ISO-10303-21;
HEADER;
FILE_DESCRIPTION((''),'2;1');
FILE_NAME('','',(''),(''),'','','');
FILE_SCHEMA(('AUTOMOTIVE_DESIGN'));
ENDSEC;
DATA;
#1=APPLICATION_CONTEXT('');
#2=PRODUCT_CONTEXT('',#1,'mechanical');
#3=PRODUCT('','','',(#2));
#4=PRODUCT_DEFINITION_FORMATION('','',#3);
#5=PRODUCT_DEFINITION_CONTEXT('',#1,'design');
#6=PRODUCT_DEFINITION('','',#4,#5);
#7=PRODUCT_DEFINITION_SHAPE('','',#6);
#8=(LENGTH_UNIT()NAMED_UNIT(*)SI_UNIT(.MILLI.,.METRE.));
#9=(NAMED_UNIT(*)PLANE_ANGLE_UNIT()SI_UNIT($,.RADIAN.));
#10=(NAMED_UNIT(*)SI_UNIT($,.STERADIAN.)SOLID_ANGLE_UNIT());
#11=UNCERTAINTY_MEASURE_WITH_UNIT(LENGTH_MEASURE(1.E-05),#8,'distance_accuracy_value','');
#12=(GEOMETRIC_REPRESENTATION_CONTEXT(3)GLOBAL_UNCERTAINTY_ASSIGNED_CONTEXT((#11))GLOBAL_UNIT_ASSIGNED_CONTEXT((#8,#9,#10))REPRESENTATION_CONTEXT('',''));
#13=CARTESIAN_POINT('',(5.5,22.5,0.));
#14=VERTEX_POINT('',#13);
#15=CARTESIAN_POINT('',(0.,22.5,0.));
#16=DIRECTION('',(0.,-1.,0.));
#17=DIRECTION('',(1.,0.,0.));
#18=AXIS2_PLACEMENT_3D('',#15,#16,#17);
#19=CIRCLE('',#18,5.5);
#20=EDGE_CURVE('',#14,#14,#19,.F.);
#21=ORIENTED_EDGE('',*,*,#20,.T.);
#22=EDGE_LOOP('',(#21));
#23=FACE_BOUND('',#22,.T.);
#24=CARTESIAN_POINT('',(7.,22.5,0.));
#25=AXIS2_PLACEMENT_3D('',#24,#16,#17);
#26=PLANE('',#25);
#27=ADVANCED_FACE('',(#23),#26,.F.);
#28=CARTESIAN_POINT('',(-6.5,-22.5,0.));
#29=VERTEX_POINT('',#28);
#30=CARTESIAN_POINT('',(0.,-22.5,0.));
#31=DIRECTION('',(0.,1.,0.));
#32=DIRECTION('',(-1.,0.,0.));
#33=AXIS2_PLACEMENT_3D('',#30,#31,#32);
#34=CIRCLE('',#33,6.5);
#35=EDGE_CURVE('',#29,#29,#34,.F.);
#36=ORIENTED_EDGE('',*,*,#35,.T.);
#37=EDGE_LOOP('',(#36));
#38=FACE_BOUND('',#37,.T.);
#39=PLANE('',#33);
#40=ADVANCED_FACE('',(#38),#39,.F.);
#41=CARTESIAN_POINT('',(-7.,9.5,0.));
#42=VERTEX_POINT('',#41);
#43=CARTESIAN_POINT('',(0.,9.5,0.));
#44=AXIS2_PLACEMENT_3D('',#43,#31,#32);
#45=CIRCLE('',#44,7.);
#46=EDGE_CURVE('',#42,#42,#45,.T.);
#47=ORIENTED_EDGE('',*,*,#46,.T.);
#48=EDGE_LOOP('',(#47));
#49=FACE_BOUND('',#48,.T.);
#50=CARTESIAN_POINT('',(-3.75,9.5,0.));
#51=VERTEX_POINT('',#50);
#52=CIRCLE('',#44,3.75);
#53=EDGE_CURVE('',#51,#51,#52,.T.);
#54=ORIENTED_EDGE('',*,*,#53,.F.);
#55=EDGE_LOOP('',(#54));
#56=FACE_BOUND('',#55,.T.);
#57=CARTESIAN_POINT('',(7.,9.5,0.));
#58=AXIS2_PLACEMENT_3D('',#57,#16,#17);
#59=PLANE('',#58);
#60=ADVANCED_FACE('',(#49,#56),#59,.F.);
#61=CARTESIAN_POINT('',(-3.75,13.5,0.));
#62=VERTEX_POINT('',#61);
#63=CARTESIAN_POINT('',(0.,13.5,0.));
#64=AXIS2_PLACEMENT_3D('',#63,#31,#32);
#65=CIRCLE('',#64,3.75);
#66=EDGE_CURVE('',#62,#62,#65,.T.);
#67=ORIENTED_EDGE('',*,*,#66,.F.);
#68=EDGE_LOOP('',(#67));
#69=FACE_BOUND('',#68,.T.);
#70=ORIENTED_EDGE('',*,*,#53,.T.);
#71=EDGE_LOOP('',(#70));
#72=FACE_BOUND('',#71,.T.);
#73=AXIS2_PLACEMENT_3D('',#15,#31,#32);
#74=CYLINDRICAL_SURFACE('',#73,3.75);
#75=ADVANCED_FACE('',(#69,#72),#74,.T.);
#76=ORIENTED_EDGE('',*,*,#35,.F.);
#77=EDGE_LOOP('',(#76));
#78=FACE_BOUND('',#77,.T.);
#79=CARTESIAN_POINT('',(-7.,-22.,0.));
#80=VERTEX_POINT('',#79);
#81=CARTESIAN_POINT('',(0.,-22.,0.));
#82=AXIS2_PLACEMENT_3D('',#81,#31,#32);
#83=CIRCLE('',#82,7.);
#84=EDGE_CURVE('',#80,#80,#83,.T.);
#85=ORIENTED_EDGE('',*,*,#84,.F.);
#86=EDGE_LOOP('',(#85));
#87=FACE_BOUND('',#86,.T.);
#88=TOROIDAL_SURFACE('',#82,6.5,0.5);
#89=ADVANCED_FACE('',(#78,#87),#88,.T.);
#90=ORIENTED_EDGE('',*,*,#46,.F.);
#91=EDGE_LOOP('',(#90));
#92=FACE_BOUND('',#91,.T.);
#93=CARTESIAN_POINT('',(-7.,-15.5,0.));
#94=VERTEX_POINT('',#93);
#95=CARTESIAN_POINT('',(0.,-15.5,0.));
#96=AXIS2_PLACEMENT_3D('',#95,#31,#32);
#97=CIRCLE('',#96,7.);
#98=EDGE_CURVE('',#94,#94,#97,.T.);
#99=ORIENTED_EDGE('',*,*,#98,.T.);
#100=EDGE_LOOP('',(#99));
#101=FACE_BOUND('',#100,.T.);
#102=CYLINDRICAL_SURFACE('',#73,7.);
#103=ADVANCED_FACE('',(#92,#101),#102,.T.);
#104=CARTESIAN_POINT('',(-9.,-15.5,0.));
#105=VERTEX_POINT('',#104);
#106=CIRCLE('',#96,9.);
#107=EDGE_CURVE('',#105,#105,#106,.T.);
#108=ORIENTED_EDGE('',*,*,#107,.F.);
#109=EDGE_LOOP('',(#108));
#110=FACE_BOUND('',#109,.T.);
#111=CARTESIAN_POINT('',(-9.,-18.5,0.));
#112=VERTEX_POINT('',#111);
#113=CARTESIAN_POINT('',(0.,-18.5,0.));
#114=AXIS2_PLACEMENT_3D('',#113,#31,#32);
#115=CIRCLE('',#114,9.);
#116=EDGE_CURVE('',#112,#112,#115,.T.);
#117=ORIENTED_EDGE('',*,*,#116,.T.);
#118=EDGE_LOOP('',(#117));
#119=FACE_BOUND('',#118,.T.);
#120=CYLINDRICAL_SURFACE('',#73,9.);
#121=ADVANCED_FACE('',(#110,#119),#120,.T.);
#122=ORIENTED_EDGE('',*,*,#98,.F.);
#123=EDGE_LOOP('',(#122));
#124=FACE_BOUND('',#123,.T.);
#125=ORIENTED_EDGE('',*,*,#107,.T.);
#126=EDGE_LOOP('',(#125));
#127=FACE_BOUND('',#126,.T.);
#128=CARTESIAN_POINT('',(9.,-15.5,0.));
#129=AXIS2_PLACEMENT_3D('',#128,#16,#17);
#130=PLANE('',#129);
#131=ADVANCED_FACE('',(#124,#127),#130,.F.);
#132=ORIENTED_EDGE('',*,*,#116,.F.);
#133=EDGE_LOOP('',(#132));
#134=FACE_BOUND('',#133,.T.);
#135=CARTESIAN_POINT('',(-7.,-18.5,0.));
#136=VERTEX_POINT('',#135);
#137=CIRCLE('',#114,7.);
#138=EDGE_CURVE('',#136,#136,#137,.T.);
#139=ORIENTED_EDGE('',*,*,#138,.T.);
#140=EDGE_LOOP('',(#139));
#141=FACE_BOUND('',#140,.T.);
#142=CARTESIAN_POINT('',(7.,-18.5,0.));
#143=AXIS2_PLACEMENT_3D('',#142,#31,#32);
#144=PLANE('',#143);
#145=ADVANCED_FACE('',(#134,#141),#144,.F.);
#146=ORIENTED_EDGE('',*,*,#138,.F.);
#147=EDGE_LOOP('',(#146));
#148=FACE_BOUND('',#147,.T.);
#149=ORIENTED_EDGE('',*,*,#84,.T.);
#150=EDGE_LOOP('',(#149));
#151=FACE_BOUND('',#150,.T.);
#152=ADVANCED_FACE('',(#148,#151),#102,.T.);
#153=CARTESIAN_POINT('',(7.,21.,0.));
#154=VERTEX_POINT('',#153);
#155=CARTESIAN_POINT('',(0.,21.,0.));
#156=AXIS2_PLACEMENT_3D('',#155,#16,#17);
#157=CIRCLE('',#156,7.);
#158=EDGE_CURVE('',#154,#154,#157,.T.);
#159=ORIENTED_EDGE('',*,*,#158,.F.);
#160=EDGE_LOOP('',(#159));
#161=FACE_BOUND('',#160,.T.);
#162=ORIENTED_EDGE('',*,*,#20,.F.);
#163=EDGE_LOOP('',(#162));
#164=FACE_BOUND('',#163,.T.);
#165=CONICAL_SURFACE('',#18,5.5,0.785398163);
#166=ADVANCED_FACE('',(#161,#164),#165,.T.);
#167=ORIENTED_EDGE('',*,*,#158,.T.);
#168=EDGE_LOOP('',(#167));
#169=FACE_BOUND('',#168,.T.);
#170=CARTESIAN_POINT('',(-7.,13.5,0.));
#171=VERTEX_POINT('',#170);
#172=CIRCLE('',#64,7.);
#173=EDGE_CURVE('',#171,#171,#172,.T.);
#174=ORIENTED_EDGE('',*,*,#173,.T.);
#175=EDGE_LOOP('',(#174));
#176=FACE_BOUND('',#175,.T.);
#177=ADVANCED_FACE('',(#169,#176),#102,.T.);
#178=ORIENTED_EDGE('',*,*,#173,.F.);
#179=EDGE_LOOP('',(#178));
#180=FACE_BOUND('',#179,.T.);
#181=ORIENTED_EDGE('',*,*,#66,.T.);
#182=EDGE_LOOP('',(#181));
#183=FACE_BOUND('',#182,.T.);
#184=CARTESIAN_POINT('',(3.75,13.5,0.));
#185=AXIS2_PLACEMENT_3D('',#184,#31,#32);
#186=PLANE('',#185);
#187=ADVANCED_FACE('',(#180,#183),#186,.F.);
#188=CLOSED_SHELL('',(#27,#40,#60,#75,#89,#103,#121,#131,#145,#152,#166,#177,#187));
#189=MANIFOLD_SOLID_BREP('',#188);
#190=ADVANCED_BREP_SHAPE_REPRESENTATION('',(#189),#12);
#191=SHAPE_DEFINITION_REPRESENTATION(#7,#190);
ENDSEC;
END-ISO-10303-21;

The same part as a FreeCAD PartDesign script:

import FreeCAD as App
import Part
import Sketcher
from FreeCAD import Vector
Q = App.Units.Quantity


def edges_at(feature, points):
    """Names of the edges that pass closest to the given points."""
    edges = feature.Shape.Edges
    near = lambda p: min(range(len(edges)), key=lambda i: edges[i].distToShape(Part.Vertex(*p))[0])
    return sorted({f"Edge{near(p) + 1}" for p in points})

doc = App.newDocument("Part")
body = doc.addObject("PartDesign::Body", "Body")

# Sketch on XY plane
sketch1 = doc.addObject("Sketcher::SketchObject", "Sketch")
body.addObject(sketch1)
sketch1.AttachmentSupport = (doc.XY_Plane, [""])
sketch1.MapMode = "FlatFace"
sketch1.addGeometry(Part.LineSegment(Vector(0, -22.5, 0), Vector(7, -22.5, 0)), False)
sketch1.addGeometry(Part.LineSegment(Vector(7, -22.5, 0), Vector(7, -18.5, 0)), False)
sketch1.addGeometry(Part.LineSegment(Vector(7, -18.5, 0), Vector(9, -18.5, 0)), False)
sketch1.addGeometry(Part.LineSegment(Vector(9, -18.5, 0), Vector(9, -15.5, 0)), False)
sketch1.addGeometry(Part.LineSegment(Vector(9, -15.5, 0), Vector(7, -15.5, 0)), False)
sketch1.addGeometry(Part.LineSegment(Vector(7, -15.5, 0), Vector(7, 9.5, 0)), False)
sketch1.addGeometry(Part.LineSegment(Vector(7, 9.5, 0), Vector(3.75, 9.5, 0)), False)
sketch1.addGeometry(Part.LineSegment(Vector(3.75, 9.5, 0), Vector(3.75, 13.5, 0)), False)
sketch1.addGeometry(Part.LineSegment(Vector(3.75, 13.5, 0), Vector(7, 13.5, 0)), False)
sketch1.addGeometry(Part.LineSegment(Vector(7, 13.5, 0), Vector(7, 22.5, 0)), False)
sketch1.addGeometry(Part.LineSegment(Vector(7, 22.5, 0), Vector(0, 22.5, 0)), False)
sketch1.addGeometry(Part.LineSegment(Vector(0, 22.5, 0), Vector(0, -22.5, 0)), False)
sketch1.addConstraint(Sketcher.Constraint("Coincident", 0, 2, 1, 1))
sketch1.addConstraint(Sketcher.Constraint("Coincident", 1, 2, 2, 1))
sketch1.addConstraint(Sketcher.Constraint("Coincident", 2, 2, 3, 1))
sketch1.addConstraint(Sketcher.Constraint("Coincident", 3, 2, 4, 1))
sketch1.addConstraint(Sketcher.Constraint("Coincident", 4, 2, 5, 1))
sketch1.addConstraint(Sketcher.Constraint("Coincident", 5, 2, 6, 1))
sketch1.addConstraint(Sketcher.Constraint("Coincident", 6, 2, 7, 1))
sketch1.addConstraint(Sketcher.Constraint("Coincident", 7, 2, 8, 1))
sketch1.addConstraint(Sketcher.Constraint("Coincident", 8, 2, 9, 1))
sketch1.addConstraint(Sketcher.Constraint("Coincident", 9, 2, 10, 1))
sketch1.addConstraint(Sketcher.Constraint("Coincident", 10, 2, 11, 1))
sketch1.addConstraint(Sketcher.Constraint("Coincident", 11, 2, 0, 1))
sketch1.addConstraint(Sketcher.Constraint("Horizontal", 0))
sketch1.addConstraint(Sketcher.Constraint("Vertical", 1))
sketch1.addConstraint(Sketcher.Constraint("Horizontal", 2))
sketch1.addConstraint(Sketcher.Constraint("Vertical", 3))
sketch1.addConstraint(Sketcher.Constraint("Horizontal", 4))
sketch1.addConstraint(Sketcher.Constraint("Vertical", 5))
sketch1.addConstraint(Sketcher.Constraint("Horizontal", 6))
sketch1.addConstraint(Sketcher.Constraint("Vertical", 7))
sketch1.addConstraint(Sketcher.Constraint("Horizontal", 8))
sketch1.addConstraint(Sketcher.Constraint("Vertical", 9))
sketch1.addConstraint(Sketcher.Constraint("Horizontal", 10))
sketch1.addConstraint(Sketcher.Constraint("Vertical", 11))
sketch1.addConstraint(Sketcher.Constraint("Symmetric", 10, 2, 11, 2, -1, 1))
sketch1.addConstraint(Sketcher.Constraint("Vertical", 1, 2, 4, 2))
sketch1.addConstraint(Sketcher.Constraint("Vertical", 5, 2, 8, 2))
sketch1.addConstraint(Sketcher.Constraint("Equal", 1, 7))
sketch1.addConstraint(Sketcher.Constraint("DistanceX", 0, 1, 0, 2, Q("7 mm")))
sketch1.addConstraint(Sketcher.Constraint("DistanceX", 2, 1, 2, 2, Q("2 mm")))
sketch1.addConstraint(Sketcher.Constraint("DistanceY", 1, 1, 1, 2, Q("4 mm")))
sketch1.addConstraint(Sketcher.Constraint("DistanceY", 3, 1, 3, 2, Q("3 mm")))
sketch1.addConstraint(Sketcher.Constraint("DistanceY", 5, 1, 5, 2, Q("25 mm")))
sketch1.addConstraint(Sketcher.Constraint("DistanceY", 9, 1, 9, 2, Q("9 mm")))
sketch1.addConstraint(Sketcher.Constraint("DistanceX", 6, 2, 6, 1, Q("3.25 mm")))
revolution = doc.addObject("PartDesign::Revolution", "Revolution")
body.addObject(revolution)
revolution.Profile = sketch1
revolution.ReferenceAxis = (sketch1, ["V_Axis"])
revolution.Angle = 360
doc.recompute()

chamfer = doc.addObject("PartDesign::Chamfer", "Chamfer")
body.addObject(chamfer)
chamfer.Base = (revolution, edges_at(revolution, [(-7, 22.5, 0)]))
chamfer.Size = 1.5
doc.recompute()

fillet = doc.addObject("PartDesign::Fillet", "Fillet")
body.addObject(fillet)
fillet.Base = (chamfer, edges_at(chamfer, [(-7, -22.5, 0)]))
fillet.Radius = 0.5

doc.recompute()
